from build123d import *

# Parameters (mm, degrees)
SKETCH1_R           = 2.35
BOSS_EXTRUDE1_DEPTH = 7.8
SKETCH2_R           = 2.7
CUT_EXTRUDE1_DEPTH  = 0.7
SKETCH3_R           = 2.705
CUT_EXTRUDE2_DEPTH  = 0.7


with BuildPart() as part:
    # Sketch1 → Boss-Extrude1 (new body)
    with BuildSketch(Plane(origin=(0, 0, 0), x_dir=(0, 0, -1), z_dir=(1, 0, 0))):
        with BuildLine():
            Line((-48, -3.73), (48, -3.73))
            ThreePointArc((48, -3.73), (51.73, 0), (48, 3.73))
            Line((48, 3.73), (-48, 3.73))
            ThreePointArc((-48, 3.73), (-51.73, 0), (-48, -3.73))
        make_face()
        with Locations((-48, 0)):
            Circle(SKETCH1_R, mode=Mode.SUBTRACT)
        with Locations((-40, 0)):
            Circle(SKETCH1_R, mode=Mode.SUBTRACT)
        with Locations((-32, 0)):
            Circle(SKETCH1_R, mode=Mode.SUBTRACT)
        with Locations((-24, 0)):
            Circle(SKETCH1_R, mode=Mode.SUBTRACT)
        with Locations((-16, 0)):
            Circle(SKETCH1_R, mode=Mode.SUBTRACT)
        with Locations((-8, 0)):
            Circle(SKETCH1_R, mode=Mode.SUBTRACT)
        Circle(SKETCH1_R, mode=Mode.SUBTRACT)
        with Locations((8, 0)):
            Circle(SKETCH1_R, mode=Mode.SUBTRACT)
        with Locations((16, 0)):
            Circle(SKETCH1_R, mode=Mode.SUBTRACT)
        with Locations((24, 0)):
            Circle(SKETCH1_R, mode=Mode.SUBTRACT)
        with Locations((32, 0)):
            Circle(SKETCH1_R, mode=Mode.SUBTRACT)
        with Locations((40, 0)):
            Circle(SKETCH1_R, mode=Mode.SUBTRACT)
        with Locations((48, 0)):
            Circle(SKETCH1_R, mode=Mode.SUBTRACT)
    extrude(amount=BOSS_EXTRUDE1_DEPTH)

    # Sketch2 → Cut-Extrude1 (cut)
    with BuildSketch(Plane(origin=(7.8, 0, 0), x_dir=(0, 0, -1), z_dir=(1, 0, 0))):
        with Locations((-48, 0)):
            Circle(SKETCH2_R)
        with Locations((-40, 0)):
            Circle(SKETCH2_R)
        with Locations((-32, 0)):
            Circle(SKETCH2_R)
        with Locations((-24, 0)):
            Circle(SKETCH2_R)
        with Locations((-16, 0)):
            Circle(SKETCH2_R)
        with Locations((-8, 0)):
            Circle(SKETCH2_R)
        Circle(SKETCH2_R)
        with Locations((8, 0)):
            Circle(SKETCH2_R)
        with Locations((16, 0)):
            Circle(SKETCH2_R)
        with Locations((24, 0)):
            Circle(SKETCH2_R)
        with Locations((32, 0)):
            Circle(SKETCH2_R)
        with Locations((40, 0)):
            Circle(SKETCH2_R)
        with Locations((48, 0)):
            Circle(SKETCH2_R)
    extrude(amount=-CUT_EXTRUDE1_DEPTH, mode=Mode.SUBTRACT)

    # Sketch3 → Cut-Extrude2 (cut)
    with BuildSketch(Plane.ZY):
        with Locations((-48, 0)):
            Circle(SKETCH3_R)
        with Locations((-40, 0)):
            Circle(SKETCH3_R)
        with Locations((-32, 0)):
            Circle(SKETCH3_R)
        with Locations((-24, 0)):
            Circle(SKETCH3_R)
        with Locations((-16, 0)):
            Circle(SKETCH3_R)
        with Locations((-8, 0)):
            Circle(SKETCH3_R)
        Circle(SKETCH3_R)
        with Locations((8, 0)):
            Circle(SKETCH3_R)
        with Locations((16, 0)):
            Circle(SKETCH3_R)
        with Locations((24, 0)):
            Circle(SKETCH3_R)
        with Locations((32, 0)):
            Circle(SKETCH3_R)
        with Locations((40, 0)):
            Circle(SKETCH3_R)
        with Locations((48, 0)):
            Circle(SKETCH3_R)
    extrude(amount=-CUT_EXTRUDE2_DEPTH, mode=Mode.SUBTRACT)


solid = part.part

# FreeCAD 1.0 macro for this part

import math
import FreeCAD as App
import Part
import Sketcher
Q = App.Units.Quantity

doc = App.newDocument("Part")
params = doc.addObject("Spreadsheet::Sheet", "Params")
for row, (alias, value) in enumerate([
    ("sketch1_diameter", "4.7 mm"),
    ("sketch1_height", "96 mm"),
    ("sketch1_radius", "3.73 mm"),
    ("pad1_length", "7.8 mm"),
    ("sketch2_diameter", "5.4 mm"),
    ("pocket1_length", "0.7 mm"),
    ("sketch3_diameter", "5.41 mm"),
    ("pocket2_length", "0.7 mm"),
], start=1):
    params.set(f"A{row}", alias)
    params.set(f"B{row}", "=" + value)
    params.setAlias(f"B{row}", alias)

body = doc.addObject("PartDesign::Body", "Body")

sketch1 = doc.addObject("Sketcher::SketchObject", "Sketch")
body.addObject(sketch1)
sketch1.AttachmentSupport = (doc.YZ_Plane, [""])
sketch1.MapMode = "FlatFace"
sketch1.addGeometry(Part.LineSegment(App.Vector(-3.7, 48, 0), App.Vector(-3.7, -48, 0)), False)
sketch1.addGeometry(Part.ArcOfCircle(Part.Circle(App.Vector(0, -48, 0), App.Vector(0, 0, 1), 3.7), math.radians(180), math.radians(360)), False)
sketch1.addGeometry(Part.LineSegment(App.Vector(3.7, -48, 0), App.Vector(3.7, 48, 0)), False)
sketch1.addGeometry(Part.ArcOfCircle(Part.Circle(App.Vector(0, 48, 0), App.Vector(0, 0, 1), 3.7), math.radians(0), math.radians(180)), False)
sketch1.addGeometry(Part.Circle(App.Vector(0, 48, 0), App.Vector(0, 0, 1), 2.4), False)
sketch1.addGeometry(Part.Circle(App.Vector(0, 40, 0), App.Vector(0, 0, 1), 2.4), False)
sketch1.addGeometry(Part.Circle(App.Vector(0, 32, 0), App.Vector(0, 0, 1), 2.4), False)
sketch1.addGeometry(Part.Circle(App.Vector(0, 24, 0), App.Vector(0, 0, 1), 2.4), False)
sketch1.addGeometry(Part.Circle(App.Vector(0, 16, 0), App.Vector(0, 0, 1), 2.4), False)
sketch1.addGeometry(Part.Circle(App.Vector(0, 8, 0), App.Vector(0, 0, 1), 2.4), False)
sketch1.addGeometry(Part.Circle(App.Vector(0, 0, 0), App.Vector(0, 0, 1), 2.4), False)
sketch1.addGeometry(Part.Circle(App.Vector(0, -8, 0), App.Vector(0, 0, 1), 2.4), False)
sketch1.addGeometry(Part.Circle(App.Vector(0, -16, 0), App.Vector(0, 0, 1), 2.4), False)
sketch1.addGeometry(Part.Circle(App.Vector(0, -24, 0), App.Vector(0, 0, 1), 2.4), False)
sketch1.addGeometry(Part.Circle(App.Vector(0, -32, 0), App.Vector(0, 0, 1), 2.4), False)
sketch1.addGeometry(Part.Circle(App.Vector(0, -40, 0), App.Vector(0, 0, 1), 2.4), False)
sketch1.addGeometry(Part.Circle(App.Vector(0, -48, 0), App.Vector(0, 0, 1), 2.4), False)
sketch1.addConstraint(Sketcher.Constraint("Tangent", 0, 2, 1, 1))
sketch1.addConstraint(Sketcher.Constraint("Tangent", 1, 2, 2, 1))
sketch1.addConstraint(Sketcher.Constraint("Tangent", 2, 2, 3, 1))
sketch1.addConstraint(Sketcher.Constraint("Tangent", 3, 2, 0, 1))
sketch1.addConstraint(Sketcher.Constraint("Vertical", 0))
sketch1.addConstraint(Sketcher.Constraint("Vertical", 2))
sketch1.addConstraint(Sketcher.Constraint("Coincident", 10, 3, -1, 1))
sketch1.addConstraint(Sketcher.Constraint("Coincident", 4, 3, 3, 3))
sketch1.addConstraint(Sketcher.Constraint("Coincident", 16, 3, 1, 3))
sketch1.addConstraint(Sketcher.Constraint("Equal", 4, 5))
sketch1.addConstraint(Sketcher.Constraint("Equal", 5, 6))
sketch1.addConstraint(Sketcher.Constraint("Equal", 6, 7))
sketch1.addConstraint(Sketcher.Constraint("Equal", 7, 8))
sketch1.addConstraint(Sketcher.Constraint("Equal", 8, 9))
sketch1.addConstraint(Sketcher.Constraint("Equal", 9, 10))
sketch1.addConstraint(Sketcher.Constraint("Equal", 10, 11))
sketch1.addConstraint(Sketcher.Constraint("Equal", 11, 12))
sketch1.addConstraint(Sketcher.Constraint("Equal", 12, 13))
sketch1.addConstraint(Sketcher.Constraint("Equal", 13, 14))
sketch1.addConstraint(Sketcher.Constraint("Equal", 14, 15))
sketch1.addConstraint(Sketcher.Constraint("Equal", 15, 16))
sketch1.addConstraint(Sketcher.Constraint("Symmetric", 1, 3, 3, 3, -1, 1))
sketch1.addConstraint(Sketcher.Constraint("Symmetric", 9, 3, 11, 3, -1, 1))
sketch1.addConstraint(Sketcher.Constraint("Symmetric", 8, 3, 12, 3, -1, 1))
sketch1.addConstraint(Sketcher.Constraint("Symmetric", 7, 3, 13, 3, -1, 1))
sketch1.addConstraint(Sketcher.Constraint("Symmetric", 6, 3, 14, 3, -1, 1))
sketch1.addConstraint(Sketcher.Constraint("Symmetric", 5, 3, 15, 3, -1, 1))
sketch1.addConstraint(Sketcher.Constraint("PointOnObject", 5, 3, -2))
sketch1.addConstraint(Sketcher.Constraint("PointOnObject", 6, 3, -2))
sketch1.addConstraint(Sketcher.Constraint("PointOnObject", 7, 3, -2))
sketch1.addConstraint(Sketcher.Constraint("PointOnObject", 8, 3, -2))
sketch1.addConstraint(Sketcher.Constraint("PointOnObject", 9, 3, -2))
sketch1.addConstraint(Sketcher.Constraint("Diameter", 4, Q("4.7 mm")))
sketch1.addConstraint(Sketcher.Constraint("DistanceY", 0, 2, 0, 1, Q("96 mm")))
sketch1.addConstraint(Sketcher.Constraint("Radius", 1, Q("3.73 mm")))
sketch1.addConstraint(Sketcher.Constraint("DistanceY", -1, 1, 5, 3, Q("40 mm")))
sketch1.addConstraint(Sketcher.Constraint("DistanceY", -1, 1, 6, 3, Q("32 mm")))
sketch1.addConstraint(Sketcher.Constraint("DistanceY", -1, 1, 7, 3, Q("24 mm")))
sketch1.addConstraint(Sketcher.Constraint("DistanceY", -1, 1, 8, 3, Q("16 mm")))
sketch1.addConstraint(Sketcher.Constraint("DistanceY", -1, 1, 9, 3, Q("8 mm")))
sketch1.setExpression("Constraints[32]", "Params.sketch1_diameter")
sketch1.setExpression("Constraints[33]", "Params.sketch1_height")
sketch1.setExpression("Constraints[34]", "Params.sketch1_radius")
pad1 = doc.addObject("PartDesign::Pad", "Pad")
body.addObject(pad1)
pad1.Profile = sketch1
pad1.setExpression("Length", "Params.pad1_length")

sketch2 = doc.addObject("Sketcher::SketchObject", "Sketch001")
body.addObject(sketch2)
sketch2.AttachmentSupport = (doc.YZ_Plane, [""])
sketch2.MapMode = "FlatFace"
sketch2.AttachmentOffset = App.Placement(App.Vector(0, 0, 7.8), App.Rotation())
sketch2.addGeometry(Part.Circle(App.Vector(0, 48, 0), App.Vector(0, 0, 1), 2.7), False)
sketch2.addGeometry(Part.Circle(App.Vector(0, 40, 0), App.Vector(0, 0, 1), 2.7), False)
sketch2.addGeometry(Part.Circle(App.Vector(0, 32, 0), App.Vector(0, 0, 1), 2.7), False)
sketch2.addGeometry(Part.Circle(App.Vector(0, 24, 0), App.Vector(0, 0, 1), 2.7), False)
sketch2.addGeometry(Part.Circle(App.Vector(0, 16, 0), App.Vector(0, 0, 1), 2.7), False)
sketch2.addGeometry(Part.Circle(App.Vector(0, 8, 0), App.Vector(0, 0, 1), 2.7), False)
sketch2.addGeometry(Part.Circle(App.Vector(0, 0, 0), App.Vector(0, 0, 1), 2.7), False)
sketch2.addGeometry(Part.Circle(App.Vector(0, -8, 0), App.Vector(0, 0, 1), 2.7), False)
sketch2.addGeometry(Part.Circle(App.Vector(0, -16, 0), App.Vector(0, 0, 1), 2.7), False)
sketch2.addGeometry(Part.Circle(App.Vector(0, -24, 0), App.Vector(0, 0, 1), 2.7), False)
sketch2.addGeometry(Part.Circle(App.Vector(0, -32, 0), App.Vector(0, 0, 1), 2.7), False)
sketch2.addGeometry(Part.Circle(App.Vector(0, -40, 0), App.Vector(0, 0, 1), 2.7), False)
sketch2.addGeometry(Part.Circle(App.Vector(0, -48, 0), App.Vector(0, 0, 1), 2.7), False)
sketch2.addConstraint(Sketcher.Constraint("Coincident", 6, 3, -1, 1))
sketch2.addConstraint(Sketcher.Constraint("Equal", 0, 1))
sketch2.addConstraint(Sketcher.Constraint("Equal", 1, 2))
sketch2.addConstraint(Sketcher.Constraint("Equal", 2, 3))
sketch2.addConstraint(Sketcher.Constraint("Equal", 3, 4))
sketch2.addConstraint(Sketcher.Constraint("Equal", 4, 5))
sketch2.addConstraint(Sketcher.Constraint("Equal", 5, 6))
sketch2.addConstraint(Sketcher.Constraint("Equal", 6, 7))
sketch2.addConstraint(Sketcher.Constraint("Equal", 7, 8))
sketch2.addConstraint(Sketcher.Constraint("Equal", 8, 9))
sketch2.addConstraint(Sketcher.Constraint("Equal", 9, 10))
sketch2.addConstraint(Sketcher.Constraint("Equal", 10, 11))
sketch2.addConstraint(Sketcher.Constraint("Equal", 11, 12))
sketch2.addConstraint(Sketcher.Constraint("Symmetric", 5, 3, 7, 3, -1, 1))
sketch2.addConstraint(Sketcher.Constraint("Symmetric", 4, 3, 8, 3, -1, 1))
sketch2.addConstraint(Sketcher.Constraint("Symmetric", 3, 3, 9, 3, -1, 1))
sketch2.addConstraint(Sketcher.Constraint("Symmetric", 2, 3, 10, 3, -1, 1))
sketch2.addConstraint(Sketcher.Constraint("Symmetric", 1, 3, 11, 3, -1, 1))
sketch2.addConstraint(Sketcher.Constraint("Symmetric", 0, 3, 12, 3, -1, 1))
sketch2.addConstraint(Sketcher.Constraint("PointOnObject", 0, 3, -2))
sketch2.addConstraint(Sketcher.Constraint("PointOnObject", 1, 3, -2))
sketch2.addConstraint(Sketcher.Constraint("PointOnObject", 2, 3, -2))
sketch2.addConstraint(Sketcher.Constraint("PointOnObject", 3, 3, -2))
sketch2.addConstraint(Sketcher.Constraint("PointOnObject", 4, 3, -2))
sketch2.addConstraint(Sketcher.Constraint("PointOnObject", 5, 3, -2))
sketch2.addConstraint(Sketcher.Constraint("Diameter", 0, Q("5.4 mm")))
sketch2.addConstraint(Sketcher.Constraint("DistanceY", -1, 1, 0, 3, Q("48 mm")))
sketch2.addConstraint(Sketcher.Constraint("DistanceY", -1, 1, 1, 3, Q("40 mm")))
sketch2.addConstraint(Sketcher.Constraint("DistanceY", -1, 1, 2, 3, Q("32 mm")))
sketch2.addConstraint(Sketcher.Constraint("DistanceY", -1, 1, 3, 3, Q("24 mm")))
sketch2.addConstraint(Sketcher.Constraint("DistanceY", -1, 1, 4, 3, Q("16 mm")))
sketch2.addConstraint(Sketcher.Constraint("DistanceY", -1, 1, 5, 3, Q("8 mm")))
sketch2.setExpression("Constraints[25]", "Params.sketch2_diameter")
pocket1 = doc.addObject("PartDesign::Pocket", "Pocket")
body.addObject(pocket1)
pocket1.Profile = sketch2
pocket1.setExpression("Length", "Params.pocket1_length")

sketch3 = doc.addObject("Sketcher::SketchObject", "Sketch002")
body.addObject(sketch3)
sketch3.AttachmentSupport = (doc.YZ_Plane, [""])
sketch3.MapMode = "FlatFace"
sketch3.addGeometry(Part.Circle(App.Vector(0, -48, 0), App.Vector(0, 0, 1), 2.7), False)
sketch3.addGeometry(Part.Circle(App.Vector(0, -40, 0), App.Vector(0, 0, 1), 2.7), False)
sketch3.addGeometry(Part.Circle(App.Vector(0, -32, 0), App.Vector(0, 0, 1), 2.7), False)
sketch3.addGeometry(Part.Circle(App.Vector(0, -24, 0), App.Vector(0, 0, 1), 2.7), False)
sketch3.addGeometry(Part.Circle(App.Vector(0, -16, 0), App.Vector(0, 0, 1), 2.7), False)
sketch3.addGeometry(Part.Circle(App.Vector(0, -8, 0), App.Vector(0, 0, 1), 2.7), False)
sketch3.addGeometry(Part.Circle(App.Vector(0, 0, 0), App.Vector(0, 0, 1), 2.7), False)
sketch3.addGeometry(Part.Circle(App.Vector(0, 8, 0), App.Vector(0, 0, 1), 2.7), False)
sketch3.addGeometry(Part.Circle(App.Vector(0, 16, 0), App.Vector(0, 0, 1), 2.7), False)
sketch3.addGeometry(Part.Circle(App.Vector(0, 24, 0), App.Vector(0, 0, 1), 2.7), False)
sketch3.addGeometry(Part.Circle(App.Vector(0, 32, 0), App.Vector(0, 0, 1), 2.7), False)
sketch3.addGeometry(Part.Circle(App.Vector(0, 40, 0), App.Vector(0, 0, 1), 2.7), False)
sketch3.addGeometry(Part.Circle(App.Vector(0, 48, 0), App.Vector(0, 0, 1), 2.7), False)
sketch3.addConstraint(Sketcher.Constraint("Coincident", 6, 3, -1, 1))
sketch3.addConstraint(Sketcher.Constraint("Equal", 0, 1))
sketch3.addConstraint(Sketcher.Constraint("Equal", 1, 2))
sketch3.addConstraint(Sketcher.Constraint("Equal", 2, 3))
sketch3.addConstraint(Sketcher.Constraint("Equal", 3, 4))
sketch3.addConstraint(Sketcher.Constraint("Equal", 4, 5))
sketch3.addConstraint(Sketcher.Constraint("Equal", 5, 6))
sketch3.addConstraint(Sketcher.Constraint("Equal", 6, 7))
sketch3.addConstraint(Sketcher.Constraint("Equal", 7, 8))
sketch3.addConstraint(Sketcher.Constraint("Equal", 8, 9))
sketch3.addConstraint(Sketcher.Constraint("Equal", 9, 10))
sketch3.addConstraint(Sketcher.Constraint("Equal", 10, 11))
sketch3.addConstraint(Sketcher.Constraint("Equal", 11, 12))
sketch3.addConstraint(Sketcher.Constraint("Symmetric", 5, 3, 7, 3, -1, 1))
sketch3.addConstraint(Sketcher.Constraint("Symmetric", 4, 3, 8, 3, -1, 1))
sketch3.addConstraint(Sketcher.Constraint("Symmetric", 3, 3, 9, 3, -1, 1))
sketch3.addConstraint(Sketcher.Constraint("Symmetric", 2, 3, 10, 3, -1, 1))
sketch3.addConstraint(Sketcher.Constraint("Symmetric", 1, 3, 11, 3, -1, 1))
sketch3.addConstraint(Sketcher.Constraint("Symmetric", 0, 3, 12, 3, -1, 1))
sketch3.addConstraint(Sketcher.Constraint("PointOnObject", 0, 3, -2))
sketch3.addConstraint(Sketcher.Constraint("PointOnObject", 1, 3, -2))
sketch3.addConstraint(Sketcher.Constraint("PointOnObject", 2, 3, -2))
sketch3.addConstraint(Sketcher.Constraint("PointOnObject", 3, 3, -2))
sketch3.addConstraint(Sketcher.Constraint("PointOnObject", 4, 3, -2))
sketch3.addConstraint(Sketcher.Constraint("PointOnObject", 5, 3, -2))
sketch3.addConstraint(Sketcher.Constraint("Diameter", 0, Q("5.41 mm")))
sketch3.addConstraint(Sketcher.Constraint("DistanceY", 0, 3, -1, 1, Q("48 mm")))
sketch3.addConstraint(Sketcher.Constraint("DistanceY", 1, 3, -1, 1, Q("40 mm")))
sketch3.addConstraint(Sketcher.Constraint("DistanceY", 2, 3, -1, 1, Q("32 mm")))
sketch3.addConstraint(Sketcher.Constraint("DistanceY", 3, 3, -1, 1, Q("24 mm")))
sketch3.addConstraint(Sketcher.Constraint("DistanceY", 4, 3, -1, 1, Q("16 mm")))
sketch3.addConstraint(Sketcher.Constraint("DistanceY", 5, 3, -1, 1, Q("8 mm")))
sketch3.setExpression("Constraints[25]", "Params.sketch3_diameter")
pocket2 = doc.addObject("PartDesign::Pocket", "Pocket001")
body.addObject(pocket2)
pocket2.Profile = sketch3
pocket2.setExpression("Length", "Params.pocket2_length")
pocket2.Reversed = True

doc.recompute()
